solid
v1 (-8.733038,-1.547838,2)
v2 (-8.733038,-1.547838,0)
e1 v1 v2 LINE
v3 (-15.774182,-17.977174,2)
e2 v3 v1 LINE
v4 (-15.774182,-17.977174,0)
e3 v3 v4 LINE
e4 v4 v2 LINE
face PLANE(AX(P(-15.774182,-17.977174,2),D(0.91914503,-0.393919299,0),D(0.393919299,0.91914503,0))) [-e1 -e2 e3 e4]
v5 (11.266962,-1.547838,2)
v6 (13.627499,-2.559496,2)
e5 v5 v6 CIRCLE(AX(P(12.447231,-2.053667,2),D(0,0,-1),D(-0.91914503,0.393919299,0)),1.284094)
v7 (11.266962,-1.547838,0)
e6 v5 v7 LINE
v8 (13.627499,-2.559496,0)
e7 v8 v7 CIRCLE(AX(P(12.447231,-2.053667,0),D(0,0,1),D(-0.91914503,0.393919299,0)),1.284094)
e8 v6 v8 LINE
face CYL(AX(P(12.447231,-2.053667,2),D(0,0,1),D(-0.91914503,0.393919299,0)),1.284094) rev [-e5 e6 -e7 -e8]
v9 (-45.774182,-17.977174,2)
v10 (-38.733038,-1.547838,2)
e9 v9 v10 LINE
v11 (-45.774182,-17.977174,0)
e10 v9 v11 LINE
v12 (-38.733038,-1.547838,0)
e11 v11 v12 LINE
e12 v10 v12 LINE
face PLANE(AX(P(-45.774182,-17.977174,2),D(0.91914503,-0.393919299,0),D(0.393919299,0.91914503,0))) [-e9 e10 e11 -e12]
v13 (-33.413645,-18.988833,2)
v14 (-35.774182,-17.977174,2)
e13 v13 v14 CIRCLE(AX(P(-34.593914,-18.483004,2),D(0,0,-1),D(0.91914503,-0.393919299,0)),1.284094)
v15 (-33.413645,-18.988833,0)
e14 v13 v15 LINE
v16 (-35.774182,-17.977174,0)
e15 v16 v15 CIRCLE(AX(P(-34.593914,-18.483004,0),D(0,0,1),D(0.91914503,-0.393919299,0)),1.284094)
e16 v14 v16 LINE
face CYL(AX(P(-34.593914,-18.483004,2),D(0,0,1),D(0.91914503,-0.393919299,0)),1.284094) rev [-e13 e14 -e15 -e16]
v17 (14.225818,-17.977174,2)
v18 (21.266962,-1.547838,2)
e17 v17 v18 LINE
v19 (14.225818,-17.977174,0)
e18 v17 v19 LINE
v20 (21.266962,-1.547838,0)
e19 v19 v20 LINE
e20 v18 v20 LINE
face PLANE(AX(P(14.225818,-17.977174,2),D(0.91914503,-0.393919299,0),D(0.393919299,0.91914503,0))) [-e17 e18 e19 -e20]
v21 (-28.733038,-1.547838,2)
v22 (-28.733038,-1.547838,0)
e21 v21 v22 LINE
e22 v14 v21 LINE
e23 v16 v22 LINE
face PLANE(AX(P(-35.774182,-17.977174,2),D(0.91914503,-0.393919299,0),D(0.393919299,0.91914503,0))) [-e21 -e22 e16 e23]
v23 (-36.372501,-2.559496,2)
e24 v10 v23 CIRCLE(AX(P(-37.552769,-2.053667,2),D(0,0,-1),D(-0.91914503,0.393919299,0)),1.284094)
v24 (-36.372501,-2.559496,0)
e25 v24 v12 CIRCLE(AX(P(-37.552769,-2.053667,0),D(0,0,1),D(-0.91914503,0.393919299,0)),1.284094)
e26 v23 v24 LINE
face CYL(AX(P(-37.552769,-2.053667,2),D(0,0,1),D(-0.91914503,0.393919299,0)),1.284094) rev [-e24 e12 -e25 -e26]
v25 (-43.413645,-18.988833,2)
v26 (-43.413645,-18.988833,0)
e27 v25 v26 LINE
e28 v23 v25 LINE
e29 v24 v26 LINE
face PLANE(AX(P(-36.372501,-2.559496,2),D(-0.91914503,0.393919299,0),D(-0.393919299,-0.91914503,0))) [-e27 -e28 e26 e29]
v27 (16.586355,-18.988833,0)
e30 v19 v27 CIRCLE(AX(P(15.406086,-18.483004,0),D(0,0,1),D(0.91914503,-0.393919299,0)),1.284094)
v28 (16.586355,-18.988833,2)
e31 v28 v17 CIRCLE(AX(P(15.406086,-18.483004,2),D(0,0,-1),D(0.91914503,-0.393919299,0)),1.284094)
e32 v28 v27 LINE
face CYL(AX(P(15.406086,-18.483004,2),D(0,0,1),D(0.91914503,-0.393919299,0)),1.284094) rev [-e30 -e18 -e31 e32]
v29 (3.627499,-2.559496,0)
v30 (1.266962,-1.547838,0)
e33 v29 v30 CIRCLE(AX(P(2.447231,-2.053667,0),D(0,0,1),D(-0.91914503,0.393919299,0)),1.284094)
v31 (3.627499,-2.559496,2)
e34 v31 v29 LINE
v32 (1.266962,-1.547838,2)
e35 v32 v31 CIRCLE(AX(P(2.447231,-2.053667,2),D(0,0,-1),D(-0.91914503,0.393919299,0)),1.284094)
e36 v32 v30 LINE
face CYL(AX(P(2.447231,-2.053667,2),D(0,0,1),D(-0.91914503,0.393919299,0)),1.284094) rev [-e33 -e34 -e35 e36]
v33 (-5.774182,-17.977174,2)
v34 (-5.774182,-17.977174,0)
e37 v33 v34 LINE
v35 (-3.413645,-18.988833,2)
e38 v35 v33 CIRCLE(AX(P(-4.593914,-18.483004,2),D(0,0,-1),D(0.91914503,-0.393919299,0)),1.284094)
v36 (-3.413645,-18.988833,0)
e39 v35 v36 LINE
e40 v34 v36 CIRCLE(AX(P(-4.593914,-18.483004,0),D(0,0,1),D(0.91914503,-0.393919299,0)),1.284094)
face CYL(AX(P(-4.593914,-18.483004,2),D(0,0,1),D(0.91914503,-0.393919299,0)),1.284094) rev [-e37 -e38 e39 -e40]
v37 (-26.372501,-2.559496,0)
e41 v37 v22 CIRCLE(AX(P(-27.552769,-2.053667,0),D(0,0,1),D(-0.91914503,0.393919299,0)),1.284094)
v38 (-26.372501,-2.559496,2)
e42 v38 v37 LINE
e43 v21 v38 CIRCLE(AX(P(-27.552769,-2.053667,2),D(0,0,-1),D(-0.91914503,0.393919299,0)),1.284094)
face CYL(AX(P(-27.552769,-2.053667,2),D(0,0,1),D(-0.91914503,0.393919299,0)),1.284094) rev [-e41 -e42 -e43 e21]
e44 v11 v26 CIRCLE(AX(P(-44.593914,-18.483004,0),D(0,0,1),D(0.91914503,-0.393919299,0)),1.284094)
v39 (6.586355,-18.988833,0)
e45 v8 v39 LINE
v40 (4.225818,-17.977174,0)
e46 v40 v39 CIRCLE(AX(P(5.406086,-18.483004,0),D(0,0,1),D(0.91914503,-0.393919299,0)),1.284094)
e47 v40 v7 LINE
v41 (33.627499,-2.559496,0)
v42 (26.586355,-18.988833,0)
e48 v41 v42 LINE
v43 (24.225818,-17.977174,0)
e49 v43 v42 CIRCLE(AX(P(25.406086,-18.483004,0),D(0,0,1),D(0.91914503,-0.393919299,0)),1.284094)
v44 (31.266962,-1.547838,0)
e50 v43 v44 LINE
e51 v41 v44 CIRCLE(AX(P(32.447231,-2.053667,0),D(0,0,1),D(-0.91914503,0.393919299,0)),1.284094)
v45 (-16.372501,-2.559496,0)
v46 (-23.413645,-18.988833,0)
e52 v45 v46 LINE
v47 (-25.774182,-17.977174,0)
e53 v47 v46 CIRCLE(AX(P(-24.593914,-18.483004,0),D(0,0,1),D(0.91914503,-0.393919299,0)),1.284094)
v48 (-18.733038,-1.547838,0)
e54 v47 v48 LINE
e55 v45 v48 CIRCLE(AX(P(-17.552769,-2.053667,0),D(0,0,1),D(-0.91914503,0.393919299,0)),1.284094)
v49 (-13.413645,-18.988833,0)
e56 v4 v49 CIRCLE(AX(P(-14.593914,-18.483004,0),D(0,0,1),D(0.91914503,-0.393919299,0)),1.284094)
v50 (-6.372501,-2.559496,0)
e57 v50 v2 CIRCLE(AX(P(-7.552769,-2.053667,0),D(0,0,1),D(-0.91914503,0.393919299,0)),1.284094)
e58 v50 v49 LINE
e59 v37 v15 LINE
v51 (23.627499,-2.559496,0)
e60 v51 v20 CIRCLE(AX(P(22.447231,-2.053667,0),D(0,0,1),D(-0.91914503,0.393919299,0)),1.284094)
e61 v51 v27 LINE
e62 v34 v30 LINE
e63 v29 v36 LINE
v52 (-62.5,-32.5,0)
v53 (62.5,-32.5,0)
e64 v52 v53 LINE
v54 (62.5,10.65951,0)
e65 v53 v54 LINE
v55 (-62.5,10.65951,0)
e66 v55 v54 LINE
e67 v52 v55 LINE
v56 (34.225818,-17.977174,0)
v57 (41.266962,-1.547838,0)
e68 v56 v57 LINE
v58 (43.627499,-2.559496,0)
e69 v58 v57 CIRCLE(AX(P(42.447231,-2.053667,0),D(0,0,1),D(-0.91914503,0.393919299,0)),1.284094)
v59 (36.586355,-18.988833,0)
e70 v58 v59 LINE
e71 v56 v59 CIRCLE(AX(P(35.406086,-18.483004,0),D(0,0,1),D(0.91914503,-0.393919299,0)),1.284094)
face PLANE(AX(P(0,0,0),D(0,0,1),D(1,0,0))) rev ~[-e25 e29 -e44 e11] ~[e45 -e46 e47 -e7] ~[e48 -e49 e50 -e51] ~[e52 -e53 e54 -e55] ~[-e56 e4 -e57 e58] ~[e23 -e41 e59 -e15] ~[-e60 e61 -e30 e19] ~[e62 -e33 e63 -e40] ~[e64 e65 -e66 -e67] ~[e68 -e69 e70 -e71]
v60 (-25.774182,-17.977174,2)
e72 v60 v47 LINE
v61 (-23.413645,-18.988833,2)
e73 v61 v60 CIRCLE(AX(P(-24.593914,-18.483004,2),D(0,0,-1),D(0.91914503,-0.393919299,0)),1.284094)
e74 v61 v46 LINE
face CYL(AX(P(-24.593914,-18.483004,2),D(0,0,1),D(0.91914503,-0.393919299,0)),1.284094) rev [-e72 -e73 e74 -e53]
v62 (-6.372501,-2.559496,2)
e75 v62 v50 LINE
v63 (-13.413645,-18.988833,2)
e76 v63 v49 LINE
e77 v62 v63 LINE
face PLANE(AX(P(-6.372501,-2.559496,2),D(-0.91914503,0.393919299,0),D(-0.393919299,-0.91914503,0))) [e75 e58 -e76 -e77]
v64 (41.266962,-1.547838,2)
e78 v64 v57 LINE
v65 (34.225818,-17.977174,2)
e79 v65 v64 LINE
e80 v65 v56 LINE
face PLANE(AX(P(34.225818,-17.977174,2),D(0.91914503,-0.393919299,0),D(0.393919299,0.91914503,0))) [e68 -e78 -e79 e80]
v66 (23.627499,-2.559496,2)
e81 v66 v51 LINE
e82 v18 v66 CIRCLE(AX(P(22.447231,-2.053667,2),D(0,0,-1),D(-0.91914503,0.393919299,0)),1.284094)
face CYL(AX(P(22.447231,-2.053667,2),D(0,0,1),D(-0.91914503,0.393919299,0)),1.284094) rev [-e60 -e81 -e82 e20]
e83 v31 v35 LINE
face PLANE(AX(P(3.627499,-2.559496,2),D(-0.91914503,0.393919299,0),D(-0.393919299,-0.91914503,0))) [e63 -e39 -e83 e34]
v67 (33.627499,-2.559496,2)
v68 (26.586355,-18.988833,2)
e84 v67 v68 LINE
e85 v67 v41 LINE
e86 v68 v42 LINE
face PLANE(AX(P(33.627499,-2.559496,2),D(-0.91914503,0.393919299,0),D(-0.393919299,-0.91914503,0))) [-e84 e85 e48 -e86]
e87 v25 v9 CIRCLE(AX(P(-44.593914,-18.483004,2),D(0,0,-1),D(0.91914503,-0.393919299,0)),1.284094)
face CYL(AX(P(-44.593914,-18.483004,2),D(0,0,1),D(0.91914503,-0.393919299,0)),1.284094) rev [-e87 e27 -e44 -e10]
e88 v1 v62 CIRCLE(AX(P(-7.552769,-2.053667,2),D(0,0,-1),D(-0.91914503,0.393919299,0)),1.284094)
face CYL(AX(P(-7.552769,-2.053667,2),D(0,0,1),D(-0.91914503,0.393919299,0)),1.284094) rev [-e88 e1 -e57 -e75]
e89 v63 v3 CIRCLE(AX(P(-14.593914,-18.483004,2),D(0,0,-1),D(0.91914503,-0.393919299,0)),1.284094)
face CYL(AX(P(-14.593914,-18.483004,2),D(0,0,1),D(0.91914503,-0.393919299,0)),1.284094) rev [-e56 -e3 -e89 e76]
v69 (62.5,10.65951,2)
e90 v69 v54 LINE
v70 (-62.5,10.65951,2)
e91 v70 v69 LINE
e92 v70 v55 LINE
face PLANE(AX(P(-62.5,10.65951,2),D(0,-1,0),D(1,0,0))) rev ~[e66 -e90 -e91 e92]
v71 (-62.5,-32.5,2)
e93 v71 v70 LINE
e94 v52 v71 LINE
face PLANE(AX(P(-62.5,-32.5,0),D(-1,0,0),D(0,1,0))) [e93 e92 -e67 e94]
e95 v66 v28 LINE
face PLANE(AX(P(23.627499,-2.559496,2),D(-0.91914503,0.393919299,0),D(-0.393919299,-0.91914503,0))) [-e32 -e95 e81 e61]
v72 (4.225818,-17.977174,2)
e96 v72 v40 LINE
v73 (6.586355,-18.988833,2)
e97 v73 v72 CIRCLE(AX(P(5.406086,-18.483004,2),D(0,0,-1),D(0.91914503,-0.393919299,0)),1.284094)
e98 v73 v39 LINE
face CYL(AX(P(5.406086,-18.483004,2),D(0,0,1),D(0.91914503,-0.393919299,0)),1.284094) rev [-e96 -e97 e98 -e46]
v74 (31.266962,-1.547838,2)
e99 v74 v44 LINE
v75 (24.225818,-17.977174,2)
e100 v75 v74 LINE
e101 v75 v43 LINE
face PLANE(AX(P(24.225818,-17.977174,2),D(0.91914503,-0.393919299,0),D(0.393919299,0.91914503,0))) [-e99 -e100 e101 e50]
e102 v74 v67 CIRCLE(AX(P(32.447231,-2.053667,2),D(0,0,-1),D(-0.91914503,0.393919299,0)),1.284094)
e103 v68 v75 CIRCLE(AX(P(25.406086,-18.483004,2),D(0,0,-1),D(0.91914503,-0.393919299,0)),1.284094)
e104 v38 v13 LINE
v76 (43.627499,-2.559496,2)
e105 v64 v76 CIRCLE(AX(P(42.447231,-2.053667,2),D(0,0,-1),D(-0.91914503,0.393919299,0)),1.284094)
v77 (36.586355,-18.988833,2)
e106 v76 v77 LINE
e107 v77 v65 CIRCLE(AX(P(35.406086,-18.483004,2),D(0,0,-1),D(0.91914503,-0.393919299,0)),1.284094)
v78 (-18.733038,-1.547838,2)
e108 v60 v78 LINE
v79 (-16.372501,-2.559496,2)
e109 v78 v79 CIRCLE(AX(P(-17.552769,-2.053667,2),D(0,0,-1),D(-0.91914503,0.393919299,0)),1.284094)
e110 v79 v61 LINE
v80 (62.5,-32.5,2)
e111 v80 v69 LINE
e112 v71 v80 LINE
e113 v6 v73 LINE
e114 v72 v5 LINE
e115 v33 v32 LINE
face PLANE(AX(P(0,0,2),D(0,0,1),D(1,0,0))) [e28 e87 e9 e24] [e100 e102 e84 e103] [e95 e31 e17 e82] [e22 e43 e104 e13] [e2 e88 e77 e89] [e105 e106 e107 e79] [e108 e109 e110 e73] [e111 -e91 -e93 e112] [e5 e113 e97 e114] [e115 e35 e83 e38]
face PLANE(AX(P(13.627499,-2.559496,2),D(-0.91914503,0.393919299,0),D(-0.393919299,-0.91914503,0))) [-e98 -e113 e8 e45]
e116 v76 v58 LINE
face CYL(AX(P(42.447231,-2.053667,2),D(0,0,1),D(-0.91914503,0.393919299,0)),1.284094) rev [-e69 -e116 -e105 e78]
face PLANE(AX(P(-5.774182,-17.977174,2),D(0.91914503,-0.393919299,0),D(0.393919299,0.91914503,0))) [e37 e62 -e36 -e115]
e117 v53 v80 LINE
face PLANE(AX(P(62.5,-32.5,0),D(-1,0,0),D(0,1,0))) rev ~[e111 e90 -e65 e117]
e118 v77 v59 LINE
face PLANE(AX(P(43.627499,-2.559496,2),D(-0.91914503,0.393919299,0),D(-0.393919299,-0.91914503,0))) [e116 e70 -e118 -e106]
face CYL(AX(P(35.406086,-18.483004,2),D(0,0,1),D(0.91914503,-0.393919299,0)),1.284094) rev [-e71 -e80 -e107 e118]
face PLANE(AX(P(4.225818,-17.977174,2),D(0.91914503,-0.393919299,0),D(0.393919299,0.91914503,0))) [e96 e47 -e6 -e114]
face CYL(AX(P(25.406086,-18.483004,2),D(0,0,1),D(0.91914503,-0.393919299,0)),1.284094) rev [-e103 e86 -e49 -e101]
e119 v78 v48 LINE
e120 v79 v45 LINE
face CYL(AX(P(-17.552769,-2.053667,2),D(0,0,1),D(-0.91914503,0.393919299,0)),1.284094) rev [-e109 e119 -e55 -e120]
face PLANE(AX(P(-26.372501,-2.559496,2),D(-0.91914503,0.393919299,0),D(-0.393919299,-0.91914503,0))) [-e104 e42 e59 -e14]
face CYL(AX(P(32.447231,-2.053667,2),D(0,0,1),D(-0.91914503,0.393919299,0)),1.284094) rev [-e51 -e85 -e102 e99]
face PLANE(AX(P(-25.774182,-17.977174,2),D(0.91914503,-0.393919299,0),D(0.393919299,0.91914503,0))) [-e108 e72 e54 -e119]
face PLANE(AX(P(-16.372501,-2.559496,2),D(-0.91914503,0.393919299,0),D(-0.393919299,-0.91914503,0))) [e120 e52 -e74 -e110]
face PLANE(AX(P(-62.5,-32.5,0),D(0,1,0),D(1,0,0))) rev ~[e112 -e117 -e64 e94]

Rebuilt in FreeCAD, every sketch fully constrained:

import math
import FreeCAD as App
import Part
import Sketcher

V = App.Vector
Q = App.Units.Quantity

doc = App.newDocument("Part")
body = doc.addObject("PartDesign::Body", "Body")

sketch1 = body.newObject("Sketcher::SketchObject", "Sketch")
sketch1.AttachmentSupport = (doc.getObject("XY_Plane"), [""])
sketch1.MapMode = "FlatFace"
sketch1.addGeometry([
    Part.LineSegment(V(-62.5, 32.5, 0), V(-62.5, -32.5, 0)),
    Part.LineSegment(V(-62.5, -32.5, 0), V(62.5, -32.5, 0)),
    Part.LineSegment(V(62.5, -32.5, 0), V(62.5, 32.5, 0)),
    Part.LineSegment(V(62.5, 32.5, 0), V(-62.5, 32.5, 0)),
], False)
sketch1.addConstraint([
    Sketcher.Constraint("Coincident", 0, 2, 1, 1),
    Sketcher.Constraint("Coincident", 1, 2, 2, 1),
    Sketcher.Constraint("Coincident", 2, 2, 3, 1),
    Sketcher.Constraint("Coincident", 3, 2, 0, 1),
    Sketcher.Constraint("Vertical", 0),
    Sketcher.Constraint("Horizontal", 1),
    Sketcher.Constraint("Vertical", 2),
    Sketcher.Constraint("Horizontal", 3),
    Sketcher.Constraint("Symmetric", 0, 2, 2, 2, -1, 1),
    Sketcher.Constraint("DistanceX", 1, 1, 1, 2, Q("125 mm")),
    Sketcher.Constraint("DistanceY", 0, 2, 0, 1, Q("65 mm")),
])
pad1 = body.newObject("PartDesign::Pad", "Pad")
pad1.Profile = sketch1
pad1.Length = 2

sketch2 = body.newObject("Sketcher::SketchObject", "Sketch001")
sketch2.AttachmentSupport = (doc.getObject("XY_Plane"), [""])
sketch2.MapMode = "FlatFace"
sketch2.AttachmentOffset = App.Placement(V(0, 0, 2), App.Rotation())
sketch2.addGeometry([
    Part.LineSegment(V(-62.5, 32.5, 0), V(-62.5, 10.65951, 0)),
    Part.LineSegment(V(-62.5, 10.65951, 0), V(62.5, 10.65951, 0)),
    Part.LineSegment(V(62.5, 10.65951, 0), V(62.5, 32.5, 0)),
    Part.LineSegment(V(62.5, 32.5, 0), V(-62.5, 32.5, 0)),
], False)
sketch2.addConstraint([
    Sketcher.Constraint("Coincident", 0, 2, 1, 1),
    Sketcher.Constraint("Coincident", 1, 2, 2, 1),
    Sketcher.Constraint("Coincident", 2, 2, 3, 1),
    Sketcher.Constraint("Coincident", 3, 2, 0, 1),
    Sketcher.Constraint("Vertical", 0),
    Sketcher.Constraint("Horizontal", 1),
    Sketcher.Constraint("Vertical", 2),
    Sketcher.Constraint("Horizontal", 3),
    Sketcher.Constraint("DistanceX", 1, 1, 1, 2, Q("125 mm")),
    Sketcher.Constraint("DistanceX", 0, 2, -1, 1, Q("62.5 mm")),
    Sketcher.Constraint("DistanceY", -1, 1, 2, 2, Q("32.5 mm")),
    Sketcher.Constraint("DistanceY", 0, 2, 0, 1, Q("21.84049 mm")),
])
pocket1 = body.newObject("PartDesign::Pocket", "Pocket")
pocket1.Profile = sketch2
pocket1.Type = "ThroughAll"

sketch3 = body.newObject("Sketcher::SketchObject", "Sketch002")
sketch3.AttachmentSupport = (doc.getObject("XY_Plane"), [""])
sketch3.MapMode = "FlatFace"
sketch3.AttachmentOffset = App.Placement(V(0, 0, 2), App.Rotation())
sketch3.addGeometry([
    Part.LineSegment(V(-38.733038, -1.547838, 0), V(-45.774182, -17.977174, 0)),
    Part.ArcOfCircle(Part.Circle(V(-44.593914, -18.483004, 0), V(0, 0, 1), 1.284094), math.radians(156.80141), math.radians(336.801409)),
    Part.LineSegment(V(-43.413645, -18.988833, 0), V(-36.372501, -2.559496, 0)),
    Part.ArcOfCircle(Part.Circle(V(-37.552769, -2.053667, 0), V(0, 0, 1), 1.284094), math.radians(-23.19859), math.radians(156.801409)),
], False)
sketch3.addConstraint([
    Sketcher.Constraint("Coincident", 0, 2, 1, 1),
    Sketcher.Constraint("Coincident", 1, 2, 2, 1),
    Sketcher.Constraint("Coincident", 2, 2, 3, 1),
    Sketcher.Constraint("Coincident", 3, 2, 0, 1),
    Sketcher.Constraint("Radius", 1, Q("1.284094 mm")),
    Sketcher.Constraint("Radius", 3, Q("1.284094 mm")),
    Sketcher.Constraint("DistanceX", 2, 2, -1, 1, Q("36.372501 mm")),
    Sketcher.Constraint("DistanceX", 3, 3, -1, 1, Q("37.552769 mm")),
    Sketcher.Constraint("DistanceX", 0, 2, 1, 3, Q("1.180268 mm")),
    Sketcher.Constraint("DistanceX", 1, 3, 1, 2, Q("1.180268 mm")),
    Sketcher.Constraint("DistanceX", 0, 2, 2, 2, Q("9.401681 mm")),
    Sketcher.Constraint("DistanceX", 3, 2, 3, 3, Q("1.180268 mm")),
    Sketcher.Constraint("Distance", 0, Q("17.874586 mm")),
    Sketcher.Constraint("DistanceY", 1, 3, -1, 1, Q("18.483004 mm")),
])
pocket2 = body.newObject("PartDesign::Pocket", "Pocket001")
pocket2.Profile = sketch3
pocket2.Length = 20
doc.recompute()

linearpattern = body.newObject("PartDesign::LinearPattern", "LinearPattern")
linearpattern.Originals = [pocket2]
linearpattern.Direction = (doc.getObject("X_Axis"), [""])
linearpattern.Mode = "offset"
linearpattern.Offset = 10
linearpattern.Occurrences = 9
body.Tip = linearpattern

doc.recompute()
